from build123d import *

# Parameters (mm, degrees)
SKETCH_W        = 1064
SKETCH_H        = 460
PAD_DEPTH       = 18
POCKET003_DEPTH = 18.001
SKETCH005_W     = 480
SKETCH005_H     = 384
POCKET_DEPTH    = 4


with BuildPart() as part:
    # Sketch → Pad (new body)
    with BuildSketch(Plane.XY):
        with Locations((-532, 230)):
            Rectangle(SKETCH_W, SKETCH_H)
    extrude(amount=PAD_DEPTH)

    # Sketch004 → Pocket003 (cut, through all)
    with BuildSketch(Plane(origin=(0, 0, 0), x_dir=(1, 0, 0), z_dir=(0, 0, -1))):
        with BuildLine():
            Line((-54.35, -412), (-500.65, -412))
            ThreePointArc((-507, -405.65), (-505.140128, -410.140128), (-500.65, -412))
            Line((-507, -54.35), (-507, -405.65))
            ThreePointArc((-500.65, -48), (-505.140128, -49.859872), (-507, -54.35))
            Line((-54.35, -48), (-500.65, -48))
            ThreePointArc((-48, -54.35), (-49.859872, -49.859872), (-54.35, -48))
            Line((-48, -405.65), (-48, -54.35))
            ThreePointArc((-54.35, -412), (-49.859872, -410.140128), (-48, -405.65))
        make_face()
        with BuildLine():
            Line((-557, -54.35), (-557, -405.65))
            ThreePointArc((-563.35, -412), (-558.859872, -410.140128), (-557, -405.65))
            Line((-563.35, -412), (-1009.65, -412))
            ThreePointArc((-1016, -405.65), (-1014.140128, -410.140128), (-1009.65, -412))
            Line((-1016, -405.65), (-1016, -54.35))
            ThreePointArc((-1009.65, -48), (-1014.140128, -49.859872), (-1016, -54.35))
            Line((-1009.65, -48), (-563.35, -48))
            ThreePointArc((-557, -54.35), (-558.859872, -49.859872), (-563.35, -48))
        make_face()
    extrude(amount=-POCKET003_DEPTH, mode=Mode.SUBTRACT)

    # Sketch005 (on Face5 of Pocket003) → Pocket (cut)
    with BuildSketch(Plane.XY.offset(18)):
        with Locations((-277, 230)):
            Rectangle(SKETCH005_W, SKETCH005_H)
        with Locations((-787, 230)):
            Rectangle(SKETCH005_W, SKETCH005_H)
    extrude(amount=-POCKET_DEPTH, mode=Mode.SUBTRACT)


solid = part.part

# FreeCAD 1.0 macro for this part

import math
import FreeCAD as App
import Part
import Sketcher
from FreeCAD import Vector
Q = App.Units.Quantity


def add_polygon(sketch, points):
    """Adds a closed chain of lines whose ends are joined by coincident constraints."""
    first, n = sketch.GeometryCount, len(points)
    for a, b in zip(points, points[1:] + points[:1]):
        sketch.addGeometry(Part.LineSegment(App.Vector(*a, 0), App.Vector(*b, 0)), False)
    for i in range(n):
        sketch.addConstraint(Sketcher.Constraint("Coincident", first + i, 2, first + (i + 1) % n, 1))

doc = App.newDocument("Part")
params = doc.addObject("Spreadsheet::Sheet", "Params")
for row, (alias, value) in enumerate([
    ("sketch1_width", "1064 mm"),
    ("sketch1_height", "460 mm"),
    ("pad1_length", "18 mm"),
    ("sketch2_radius", "6.35 mm"),
    ("sketch2_width", "446.3 mm"),
    ("sketch2_height", "351.3 mm"),
    ("sketch3_width", "480 mm"),
    ("sketch3_height", "384 mm"),
    ("pocket2_length", "4 mm"),
], start=1):
    params.set(f"A{row}", alias)
    params.set(f"B{row}", "=" + value)
    params.setAlias(f"B{row}", alias)

body = doc.addObject("PartDesign::Body", "Body")

sketch1 = body.newObject("Sketcher::SketchObject", "Sketch")
sketch1.AttachmentSupport = (doc.getObject("XY_Plane"), [""])
sketch1.MapMode = "FlatFace"
add_polygon(sketch1, [(-1064, 460), (-1064, 0), (0, 0), (0, 460)])
sketch1.addConstraint(Sketcher.Constraint("Vertical", 0))
sketch1.addConstraint(Sketcher.Constraint("Horizontal", 1))
sketch1.addConstraint(Sketcher.Constraint("Vertical", 2))
sketch1.addConstraint(Sketcher.Constraint("Horizontal", 3))
sketch1.addConstraint(Sketcher.Constraint("Coincident", 1, 2, -1, 1))
sketch1.addConstraint(Sketcher.Constraint("DistanceX", 1, 1, 1, 2, Q("1064 mm")))
sketch1.addConstraint(Sketcher.Constraint("DistanceY", 0, 2, 0, 1, Q("460 mm")))
sketch1.setExpression("Constraints[9]", "Params.sketch1_width")
sketch1.setExpression("Constraints[10]", "Params.sketch1_height")
pad1 = body.newObject("PartDesign::Pad", "Pad")
pad1.Profile = sketch1
pad1.setExpression("Length", "Params.pad1_length")

sketch2 = body.newObject("Sketcher::SketchObject", "Sketch001")
sketch2.AttachmentSupport = (doc.getObject("XY_Plane"), [""])
sketch2.MapMode = "FlatFace"
sketch2.addGeometry(Part.LineSegment(Vector(-500.65, 412, 0), Vector(-54.35, 412, 0)), False)
sketch2.addGeometry(Part.ArcOfCircle(Part.Circle(Vector(-54.35, 405.65, 0), Vector(0, 0, 1), 6.35), math.radians(0.000002), math.radians(89.999998)), False)
sketch2.addGeometry(Part.LineSegment(Vector(-48, 405.65, 0), Vector(-48, 54.35, 0)), False)
sketch2.addGeometry(Part.ArcOfCircle(Part.Circle(Vector(-54.35, 54.35, 0), Vector(0, 0, 1), 6.35), math.radians(-89.999998), math.radians(-0.000002)), False)
sketch2.addGeometry(Part.LineSegment(Vector(-54.35, 48, 0), Vector(-500.65, 48, 0)), False)
sketch2.addGeometry(Part.ArcOfCircle(Part.Circle(Vector(-500.65, 54.35, 0), Vector(0, 0, 1), 6.35), math.radians(-179.999998), math.radians(-90.000002)), False)
sketch2.addGeometry(Part.LineSegment(Vector(-507, 54.35, 0), Vector(-507, 405.65, 0)), False)
sketch2.addGeometry(Part.ArcOfCircle(Part.Circle(Vector(-500.65, 405.65, 0), Vector(0, 0, 1), 6.35), math.radians(90.000002), math.radians(179.999998)), False)
sketch2.addGeometry(Part.LineSegment(Vector(-557, 405.65, 0), Vector(-557, 54.35, 0)), False)
sketch2.addGeometry(Part.ArcOfCircle(Part.Circle(Vector(-563.35, 54.35, 0), Vector(0, 0, 1), 6.35), math.radians(-89.999998), math.radians(-0.000002)), False)
sketch2.addGeometry(Part.LineSegment(Vector(-563.35, 48, 0), Vector(-1009.65, 48, 0)), False)
sketch2.addGeometry(Part.ArcOfCircle(Part.Circle(Vector(-1009.65, 54.35, 0), Vector(0, 0, 1), 6.35), math.radians(-179.999998), math.radians(-90.000002)), False)
sketch2.addGeometry(Part.LineSegment(Vector(-1016, 54.35, 0), Vector(-1016, 405.65, 0)), False)
sketch2.addGeometry(Part.ArcOfCircle(Part.Circle(Vector(-1009.65, 405.65, 0), Vector(0, 0, 1), 6.35), math.radians(90.000002), math.radians(179.999998)), False)
sketch2.addGeometry(Part.LineSegment(Vector(-1009.65, 412, 0), Vector(-563.35, 412, 0)), False)
sketch2.addGeometry(Part.ArcOfCircle(Part.Circle(Vector(-563.35, 405.65, 0), Vector(0, 0, 1), 6.35), math.radians(0.000002), math.radians(89.999998)), False)
sketch2.addConstraint(Sketcher.Constraint("Tangent", 0, 2, 1, 2))
sketch2.addConstraint(Sketcher.Constraint("Tangent", 1, 1, 2, 1))
sketch2.addConstraint(Sketcher.Constraint("Tangent", 2, 2, 3, 2))
sketch2.addConstraint(Sketcher.Constraint("Tangent", 3, 1, 4, 1))
sketch2.addConstraint(Sketcher.Constraint("Tangent", 4, 2, 5, 2))
sketch2.addConstraint(Sketcher.Constraint("Tangent", 5, 1, 6, 1))
sketch2.addConstraint(Sketcher.Constraint("Tangent", 6, 2, 7, 2))
sketch2.addConstraint(Sketcher.Constraint("Tangent", 7, 1, 0, 1))
sketch2.addConstraint(Sketcher.Constraint("Tangent", 8, 2, 9, 2))
sketch2.addConstraint(Sketcher.Constraint("Tangent", 9, 1, 10, 1))
sketch2.addConstraint(Sketcher.Constraint("Tangent", 10, 2, 11, 2))
sketch2.addConstraint(Sketcher.Constraint("Tangent", 11, 1, 12, 1))
sketch2.addConstraint(Sketcher.Constraint("Tangent", 12, 2, 13, 2))
sketch2.addConstraint(Sketcher.Constraint("Tangent", 13, 1, 14, 1))
sketch2.addConstraint(Sketcher.Constraint("Tangent", 14, 2, 15, 2))
sketch2.addConstraint(Sketcher.Constraint("Tangent", 15, 1, 8, 1))
sketch2.addConstraint(Sketcher.Constraint("Horizontal", 0))
sketch2.addConstraint(Sketcher.Constraint("Vertical", 2))
sketch2.addConstraint(Sketcher.Constraint("Horizontal", 4))
sketch2.addConstraint(Sketcher.Constraint("Vertical", 6))
sketch2.addConstraint(Sketcher.Constraint("Vertical", 8))
sketch2.addConstraint(Sketcher.Constraint("Horizontal", 10))
sketch2.addConstraint(Sketcher.Constraint("Vertical", 12))
sketch2.addConstraint(Sketcher.Constraint("Horizontal", 14))
sketch2.addConstraint(Sketcher.Constraint("Equal", 1, 3))
sketch2.addConstraint(Sketcher.Constraint("Equal", 3, 5))
sketch2.addConstraint(Sketcher.Constraint("Equal", 5, 7))
sketch2.addConstraint(Sketcher.Constraint("Equal", 7, 9))
sketch2.addConstraint(Sketcher.Constraint("Equal", 9, 11))
sketch2.addConstraint(Sketcher.Constraint("Equal", 11, 13))
sketch2.addConstraint(Sketcher.Constraint("Equal", 13, 15))
sketch2.addConstraint(Sketcher.Constraint("Horizontal", 5, 3, 9, 3))
sketch2.addConstraint(Sketcher.Constraint("Horizontal", 7, 3, 13, 3))
sketch2.addConstraint(Sketcher.Constraint("Equal", 4, 10))
sketch2.addConstraint(Sketcher.Constraint("Radius", 1, Q("6.35 mm")))
sketch2.addConstraint(Sketcher.Constraint("DistanceX", 0, 1, 0, 2, Q("446.3 mm")))
sketch2.addConstraint(Sketcher.Constraint("DistanceY", 2, 2, 2, 1, Q("351.3 mm")))
sketch2.addConstraint(Sketcher.Constraint("DistanceY", -1, 1, 0, 2, Q("412 mm")))
sketch2.addConstraint(Sketcher.Constraint("DistanceX", 1, 1, -1, 1, Q("48 mm")))
sketch2.addConstraint(Sketcher.Constraint("DistanceX", 8, 2, -1, 1, Q("557 mm")))
sketch2.setExpression("Constraints[34]", "Params.sketch2_radius")
sketch2.setExpression("Constraints[35]", "Params.sketch2_width")
sketch2.setExpression("Constraints[36]", "Params.sketch2_height")
pocket1 = body.newObject("PartDesign::Pocket", "Pocket")
pocket1.Profile = sketch2
pocket1.Type = "ThroughAll"
pocket1.Reversed = True

sketch3 = body.newObject("Sketcher::SketchObject", "Sketch002")
sketch3.AttachmentSupport = (doc.getObject("XY_Plane"), [""])
sketch3.MapMode = "FlatFace"
sketch3.AttachmentOffset = App.Placement(Vector(0, 0, 18), App.Rotation())
add_polygon(sketch3, [(-517, 422), (-517, 38), (-37, 38), (-37, 422)])
add_polygon(sketch3, [(-1027, 422), (-1027, 38), (-547, 38), (-547, 422)])
sketch3.addConstraint(Sketcher.Constraint("Vertical", 0))
sketch3.addConstraint(Sketcher.Constraint("Horizontal", 1))
sketch3.addConstraint(Sketcher.Constraint("Vertical", 2))
sketch3.addConstraint(Sketcher.Constraint("Horizontal", 3))
sketch3.addConstraint(Sketcher.Constraint("Vertical", 4))
sketch3.addConstraint(Sketcher.Constraint("Horizontal", 5))
sketch3.addConstraint(Sketcher.Constraint("Vertical", 6))
sketch3.addConstraint(Sketcher.Constraint("Horizontal", 7))
sketch3.addConstraint(Sketcher.Constraint("Horizontal", 1, 2, 4, 2))
sketch3.addConstraint(Sketcher.Constraint("Horizontal", 3, 2, 6, 2))
sketch3.addConstraint(Sketcher.Constraint("Equal", 3, 5))
sketch3.addConstraint(Sketcher.Constraint("DistanceX", 1, 1, 1, 2, Q("480 mm")))
sketch3.addConstraint(Sketcher.Constraint("DistanceY", 0, 2, 0, 1, Q("384 mm")))
sketch3.addConstraint(Sketcher.Constraint("DistanceX", 0, 2, -1, 1, Q("517 mm")))
sketch3.addConstraint(Sketcher.Constraint("DistanceY", -1, 1, 0, 2, Q("38 mm")))
sketch3.addConstraint(Sketcher.Constraint("DistanceX", 4, 2, -1, 1, Q("1027 mm")))
sketch3.setExpression("Constraints[19]", "Params.sketch3_width")
sketch3.setExpression("Constraints[20]", "Params.sketch3_height")
pocket2 = body.newObject("PartDesign::Pocket", "Pocket001")
pocket2.Profile = sketch3
pocket2.setExpression("Length", "Params.pocket2_length")

doc.recompute()
